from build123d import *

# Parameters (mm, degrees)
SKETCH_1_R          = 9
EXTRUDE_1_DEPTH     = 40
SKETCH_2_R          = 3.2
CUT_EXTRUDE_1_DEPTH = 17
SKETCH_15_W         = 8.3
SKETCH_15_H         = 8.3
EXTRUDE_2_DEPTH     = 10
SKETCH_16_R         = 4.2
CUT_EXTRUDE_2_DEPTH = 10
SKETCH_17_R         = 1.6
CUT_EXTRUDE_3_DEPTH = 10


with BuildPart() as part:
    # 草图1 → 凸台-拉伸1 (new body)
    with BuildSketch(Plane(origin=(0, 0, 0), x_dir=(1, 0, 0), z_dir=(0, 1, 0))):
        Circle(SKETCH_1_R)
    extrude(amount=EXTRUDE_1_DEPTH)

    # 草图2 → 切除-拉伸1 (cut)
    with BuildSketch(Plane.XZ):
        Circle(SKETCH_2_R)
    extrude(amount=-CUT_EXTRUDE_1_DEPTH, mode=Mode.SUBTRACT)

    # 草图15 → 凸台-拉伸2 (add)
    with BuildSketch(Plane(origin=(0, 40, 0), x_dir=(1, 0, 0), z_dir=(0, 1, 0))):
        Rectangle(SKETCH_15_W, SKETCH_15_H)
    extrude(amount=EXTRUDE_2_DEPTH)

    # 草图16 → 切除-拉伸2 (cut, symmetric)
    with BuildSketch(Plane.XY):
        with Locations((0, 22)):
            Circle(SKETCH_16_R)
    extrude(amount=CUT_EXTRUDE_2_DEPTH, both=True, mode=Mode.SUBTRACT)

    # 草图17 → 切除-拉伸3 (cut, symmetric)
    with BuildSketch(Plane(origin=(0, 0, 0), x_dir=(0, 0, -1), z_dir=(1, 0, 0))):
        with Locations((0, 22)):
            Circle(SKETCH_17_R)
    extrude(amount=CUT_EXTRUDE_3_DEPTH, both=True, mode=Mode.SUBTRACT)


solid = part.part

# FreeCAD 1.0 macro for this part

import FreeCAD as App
import Part
import Sketcher
from FreeCAD import Vector
Q = App.Units.Quantity


def add_polygon(sketch, points):
    """Adds a closed chain of lines whose ends are joined by coincident constraints."""
    first, n = sketch.GeometryCount, len(points)
    for a, b in zip(points, points[1:] + points[:1]):
        sketch.addGeometry(Part.LineSegment(App.Vector(*a, 0), App.Vector(*b, 0)), False)
    for i in range(n):
        sketch.addConstraint(Sketcher.Constraint("Coincident", first + i, 2, first + (i + 1) % n, 1))

doc = App.newDocument("Part")
params = doc.addObject("Spreadsheet::Sheet", "Params")
for row, (alias, value) in enumerate([
    ("sketch1_diameter", "18 mm"),
    ("pad1_length", "40 mm"),
    ("sketch2_diameter", "6.4 mm"),
    ("pocket1_length", "17 mm"),
    ("sketch3_width", "8.3 mm"),
    ("pad2_length", "10 mm"),
    ("sketch4_diameter", "8.4 mm"),
    ("pocket2_length", "20 mm"),
    ("sketch5_diameter", "3.2 mm"),
    ("pocket3_length", "20 mm"),
], start=1):
    params.set(f"A{row}", alias)
    params.set(f"B{row}", "=" + value)
    params.setAlias(f"B{row}", alias)

body = doc.addObject("PartDesign::Body", "Body")

sketch1 = body.newObject("Sketcher::SketchObject", "Sketch")
sketch1.AttachmentSupport = (doc.getObject("XZ_Plane"), [""])
sketch1.MapMode = "FlatFace"
sketch1.addGeometry(Part.Circle(Vector(0, 0, 0), Vector(0, 0, 1), 9), False)
sketch1.addConstraint(Sketcher.Constraint("Coincident", 0, 3, -1, 1))
sketch1.addConstraint(Sketcher.Constraint("Diameter", 0, Q("18 mm")))
sketch1.setExpression("Constraints[1]", "Params.sketch1_diameter")
pad1 = body.newObject("PartDesign::Pad", "Pad")
pad1.Profile = sketch1
pad1.setExpression("Length", "Params.pad1_length")
pad1.Reversed = True

sketch2 = body.newObject("Sketcher::SketchObject", "Sketch001")
sketch2.AttachmentSupport = (doc.getObject("XZ_Plane"), [""])
sketch2.MapMode = "FlatFace"
sketch2.addGeometry(Part.Circle(Vector(0, 0, 0), Vector(0, 0, 1), 3.2), False)
sketch2.addConstraint(Sketcher.Constraint("Coincident", 0, 3, -1, 1))
sketch2.addConstraint(Sketcher.Constraint("Diameter", 0, Q("6.4 mm")))
sketch2.setExpression("Constraints[1]", "Params.sketch2_diameter")
pocket1 = body.newObject("PartDesign::Pocket", "Pocket")
pocket1.Profile = sketch2
pocket1.setExpression("Length", "Params.pocket1_length")

sketch3 = body.newObject("Sketcher::SketchObject", "Sketch002")
sketch3.AttachmentSupport = (doc.getObject("XZ_Plane"), [""])
sketch3.MapMode = "FlatFace"
sketch3.AttachmentOffset = App.Placement(Vector(0, 0, -40), App.Rotation())
add_polygon(sketch3, [(-4, -4), (-4, 4), (4, 4), (4, -4)])
sketch3.addConstraint(Sketcher.Constraint("Vertical", 0))
sketch3.addConstraint(Sketcher.Constraint("Horizontal", 1))
sketch3.addConstraint(Sketcher.Constraint("Vertical", 2))
sketch3.addConstraint(Sketcher.Constraint("Horizontal", 3))
sketch3.addConstraint(Sketcher.Constraint("Symmetric", 0, 2, 2, 2, -1, 1))
sketch3.addConstraint(Sketcher.Constraint("Equal", 3, 0))
sketch3.addConstraint(Sketcher.Constraint("DistanceX", 1, 1, 1, 2, Q("8.3 mm")))
sketch3.setExpression("Constraints[10]", "Params.sketch3_width")
pad2 = body.newObject("PartDesign::Pad", "Pad001")
pad2.Profile = sketch3
pad2.setExpression("Length", "Params.pad2_length")
pad2.Reversed = True

sketch4 = body.newObject("Sketcher::SketchObject", "Sketch003")
sketch4.AttachmentSupport = (doc.getObject("XY_Plane"), [""])
sketch4.MapMode = "FlatFace"
sketch4.addGeometry(Part.Circle(Vector(0, 22, 0), Vector(0, 0, 1), 4.2), False)
sketch4.addConstraint(Sketcher.Constraint("PointOnObject", 0, 3, -2))
sketch4.addConstraint(Sketcher.Constraint("Diameter", 0, Q("8.4 mm")))
sketch4.addConstraint(Sketcher.Constraint("DistanceY", -1, 1, 0, 3, Q("22 mm")))
sketch4.setExpression("Constraints[1]", "Params.sketch4_diameter")
pocket2 = body.newObject("PartDesign::Pocket", "Pocket001")
pocket2.Profile = sketch4
pocket2.setExpression("Length", "Params.pocket2_length")
pocket2.Midplane = True

sketch5 = body.newObject("Sketcher::SketchObject", "Sketch004")
sketch5.AttachmentSupport = (doc.getObject("YZ_Plane"), [""])
sketch5.MapMode = "FlatFace"
sketch5.addGeometry(Part.Circle(Vector(22, 0, 0), Vector(0, 0, 1), 1.6), False)
sketch5.addConstraint(Sketcher.Constraint("PointOnObject", 0, 3, -1))
sketch5.addConstraint(Sketcher.Constraint("Diameter", 0, Q("3.2 mm")))
sketch5.addConstraint(Sketcher.Constraint("DistanceX", -1, 1, 0, 3, Q("22 mm")))
sketch5.setExpression("Constraints[1]", "Params.sketch5_diameter")
pocket3 = body.newObject("PartDesign::Pocket", "Pocket002")
pocket3.Profile = sketch5
pocket3.setExpression("Length", "Params.pocket3_length")
pocket3.Midplane = True

doc.recompute()
